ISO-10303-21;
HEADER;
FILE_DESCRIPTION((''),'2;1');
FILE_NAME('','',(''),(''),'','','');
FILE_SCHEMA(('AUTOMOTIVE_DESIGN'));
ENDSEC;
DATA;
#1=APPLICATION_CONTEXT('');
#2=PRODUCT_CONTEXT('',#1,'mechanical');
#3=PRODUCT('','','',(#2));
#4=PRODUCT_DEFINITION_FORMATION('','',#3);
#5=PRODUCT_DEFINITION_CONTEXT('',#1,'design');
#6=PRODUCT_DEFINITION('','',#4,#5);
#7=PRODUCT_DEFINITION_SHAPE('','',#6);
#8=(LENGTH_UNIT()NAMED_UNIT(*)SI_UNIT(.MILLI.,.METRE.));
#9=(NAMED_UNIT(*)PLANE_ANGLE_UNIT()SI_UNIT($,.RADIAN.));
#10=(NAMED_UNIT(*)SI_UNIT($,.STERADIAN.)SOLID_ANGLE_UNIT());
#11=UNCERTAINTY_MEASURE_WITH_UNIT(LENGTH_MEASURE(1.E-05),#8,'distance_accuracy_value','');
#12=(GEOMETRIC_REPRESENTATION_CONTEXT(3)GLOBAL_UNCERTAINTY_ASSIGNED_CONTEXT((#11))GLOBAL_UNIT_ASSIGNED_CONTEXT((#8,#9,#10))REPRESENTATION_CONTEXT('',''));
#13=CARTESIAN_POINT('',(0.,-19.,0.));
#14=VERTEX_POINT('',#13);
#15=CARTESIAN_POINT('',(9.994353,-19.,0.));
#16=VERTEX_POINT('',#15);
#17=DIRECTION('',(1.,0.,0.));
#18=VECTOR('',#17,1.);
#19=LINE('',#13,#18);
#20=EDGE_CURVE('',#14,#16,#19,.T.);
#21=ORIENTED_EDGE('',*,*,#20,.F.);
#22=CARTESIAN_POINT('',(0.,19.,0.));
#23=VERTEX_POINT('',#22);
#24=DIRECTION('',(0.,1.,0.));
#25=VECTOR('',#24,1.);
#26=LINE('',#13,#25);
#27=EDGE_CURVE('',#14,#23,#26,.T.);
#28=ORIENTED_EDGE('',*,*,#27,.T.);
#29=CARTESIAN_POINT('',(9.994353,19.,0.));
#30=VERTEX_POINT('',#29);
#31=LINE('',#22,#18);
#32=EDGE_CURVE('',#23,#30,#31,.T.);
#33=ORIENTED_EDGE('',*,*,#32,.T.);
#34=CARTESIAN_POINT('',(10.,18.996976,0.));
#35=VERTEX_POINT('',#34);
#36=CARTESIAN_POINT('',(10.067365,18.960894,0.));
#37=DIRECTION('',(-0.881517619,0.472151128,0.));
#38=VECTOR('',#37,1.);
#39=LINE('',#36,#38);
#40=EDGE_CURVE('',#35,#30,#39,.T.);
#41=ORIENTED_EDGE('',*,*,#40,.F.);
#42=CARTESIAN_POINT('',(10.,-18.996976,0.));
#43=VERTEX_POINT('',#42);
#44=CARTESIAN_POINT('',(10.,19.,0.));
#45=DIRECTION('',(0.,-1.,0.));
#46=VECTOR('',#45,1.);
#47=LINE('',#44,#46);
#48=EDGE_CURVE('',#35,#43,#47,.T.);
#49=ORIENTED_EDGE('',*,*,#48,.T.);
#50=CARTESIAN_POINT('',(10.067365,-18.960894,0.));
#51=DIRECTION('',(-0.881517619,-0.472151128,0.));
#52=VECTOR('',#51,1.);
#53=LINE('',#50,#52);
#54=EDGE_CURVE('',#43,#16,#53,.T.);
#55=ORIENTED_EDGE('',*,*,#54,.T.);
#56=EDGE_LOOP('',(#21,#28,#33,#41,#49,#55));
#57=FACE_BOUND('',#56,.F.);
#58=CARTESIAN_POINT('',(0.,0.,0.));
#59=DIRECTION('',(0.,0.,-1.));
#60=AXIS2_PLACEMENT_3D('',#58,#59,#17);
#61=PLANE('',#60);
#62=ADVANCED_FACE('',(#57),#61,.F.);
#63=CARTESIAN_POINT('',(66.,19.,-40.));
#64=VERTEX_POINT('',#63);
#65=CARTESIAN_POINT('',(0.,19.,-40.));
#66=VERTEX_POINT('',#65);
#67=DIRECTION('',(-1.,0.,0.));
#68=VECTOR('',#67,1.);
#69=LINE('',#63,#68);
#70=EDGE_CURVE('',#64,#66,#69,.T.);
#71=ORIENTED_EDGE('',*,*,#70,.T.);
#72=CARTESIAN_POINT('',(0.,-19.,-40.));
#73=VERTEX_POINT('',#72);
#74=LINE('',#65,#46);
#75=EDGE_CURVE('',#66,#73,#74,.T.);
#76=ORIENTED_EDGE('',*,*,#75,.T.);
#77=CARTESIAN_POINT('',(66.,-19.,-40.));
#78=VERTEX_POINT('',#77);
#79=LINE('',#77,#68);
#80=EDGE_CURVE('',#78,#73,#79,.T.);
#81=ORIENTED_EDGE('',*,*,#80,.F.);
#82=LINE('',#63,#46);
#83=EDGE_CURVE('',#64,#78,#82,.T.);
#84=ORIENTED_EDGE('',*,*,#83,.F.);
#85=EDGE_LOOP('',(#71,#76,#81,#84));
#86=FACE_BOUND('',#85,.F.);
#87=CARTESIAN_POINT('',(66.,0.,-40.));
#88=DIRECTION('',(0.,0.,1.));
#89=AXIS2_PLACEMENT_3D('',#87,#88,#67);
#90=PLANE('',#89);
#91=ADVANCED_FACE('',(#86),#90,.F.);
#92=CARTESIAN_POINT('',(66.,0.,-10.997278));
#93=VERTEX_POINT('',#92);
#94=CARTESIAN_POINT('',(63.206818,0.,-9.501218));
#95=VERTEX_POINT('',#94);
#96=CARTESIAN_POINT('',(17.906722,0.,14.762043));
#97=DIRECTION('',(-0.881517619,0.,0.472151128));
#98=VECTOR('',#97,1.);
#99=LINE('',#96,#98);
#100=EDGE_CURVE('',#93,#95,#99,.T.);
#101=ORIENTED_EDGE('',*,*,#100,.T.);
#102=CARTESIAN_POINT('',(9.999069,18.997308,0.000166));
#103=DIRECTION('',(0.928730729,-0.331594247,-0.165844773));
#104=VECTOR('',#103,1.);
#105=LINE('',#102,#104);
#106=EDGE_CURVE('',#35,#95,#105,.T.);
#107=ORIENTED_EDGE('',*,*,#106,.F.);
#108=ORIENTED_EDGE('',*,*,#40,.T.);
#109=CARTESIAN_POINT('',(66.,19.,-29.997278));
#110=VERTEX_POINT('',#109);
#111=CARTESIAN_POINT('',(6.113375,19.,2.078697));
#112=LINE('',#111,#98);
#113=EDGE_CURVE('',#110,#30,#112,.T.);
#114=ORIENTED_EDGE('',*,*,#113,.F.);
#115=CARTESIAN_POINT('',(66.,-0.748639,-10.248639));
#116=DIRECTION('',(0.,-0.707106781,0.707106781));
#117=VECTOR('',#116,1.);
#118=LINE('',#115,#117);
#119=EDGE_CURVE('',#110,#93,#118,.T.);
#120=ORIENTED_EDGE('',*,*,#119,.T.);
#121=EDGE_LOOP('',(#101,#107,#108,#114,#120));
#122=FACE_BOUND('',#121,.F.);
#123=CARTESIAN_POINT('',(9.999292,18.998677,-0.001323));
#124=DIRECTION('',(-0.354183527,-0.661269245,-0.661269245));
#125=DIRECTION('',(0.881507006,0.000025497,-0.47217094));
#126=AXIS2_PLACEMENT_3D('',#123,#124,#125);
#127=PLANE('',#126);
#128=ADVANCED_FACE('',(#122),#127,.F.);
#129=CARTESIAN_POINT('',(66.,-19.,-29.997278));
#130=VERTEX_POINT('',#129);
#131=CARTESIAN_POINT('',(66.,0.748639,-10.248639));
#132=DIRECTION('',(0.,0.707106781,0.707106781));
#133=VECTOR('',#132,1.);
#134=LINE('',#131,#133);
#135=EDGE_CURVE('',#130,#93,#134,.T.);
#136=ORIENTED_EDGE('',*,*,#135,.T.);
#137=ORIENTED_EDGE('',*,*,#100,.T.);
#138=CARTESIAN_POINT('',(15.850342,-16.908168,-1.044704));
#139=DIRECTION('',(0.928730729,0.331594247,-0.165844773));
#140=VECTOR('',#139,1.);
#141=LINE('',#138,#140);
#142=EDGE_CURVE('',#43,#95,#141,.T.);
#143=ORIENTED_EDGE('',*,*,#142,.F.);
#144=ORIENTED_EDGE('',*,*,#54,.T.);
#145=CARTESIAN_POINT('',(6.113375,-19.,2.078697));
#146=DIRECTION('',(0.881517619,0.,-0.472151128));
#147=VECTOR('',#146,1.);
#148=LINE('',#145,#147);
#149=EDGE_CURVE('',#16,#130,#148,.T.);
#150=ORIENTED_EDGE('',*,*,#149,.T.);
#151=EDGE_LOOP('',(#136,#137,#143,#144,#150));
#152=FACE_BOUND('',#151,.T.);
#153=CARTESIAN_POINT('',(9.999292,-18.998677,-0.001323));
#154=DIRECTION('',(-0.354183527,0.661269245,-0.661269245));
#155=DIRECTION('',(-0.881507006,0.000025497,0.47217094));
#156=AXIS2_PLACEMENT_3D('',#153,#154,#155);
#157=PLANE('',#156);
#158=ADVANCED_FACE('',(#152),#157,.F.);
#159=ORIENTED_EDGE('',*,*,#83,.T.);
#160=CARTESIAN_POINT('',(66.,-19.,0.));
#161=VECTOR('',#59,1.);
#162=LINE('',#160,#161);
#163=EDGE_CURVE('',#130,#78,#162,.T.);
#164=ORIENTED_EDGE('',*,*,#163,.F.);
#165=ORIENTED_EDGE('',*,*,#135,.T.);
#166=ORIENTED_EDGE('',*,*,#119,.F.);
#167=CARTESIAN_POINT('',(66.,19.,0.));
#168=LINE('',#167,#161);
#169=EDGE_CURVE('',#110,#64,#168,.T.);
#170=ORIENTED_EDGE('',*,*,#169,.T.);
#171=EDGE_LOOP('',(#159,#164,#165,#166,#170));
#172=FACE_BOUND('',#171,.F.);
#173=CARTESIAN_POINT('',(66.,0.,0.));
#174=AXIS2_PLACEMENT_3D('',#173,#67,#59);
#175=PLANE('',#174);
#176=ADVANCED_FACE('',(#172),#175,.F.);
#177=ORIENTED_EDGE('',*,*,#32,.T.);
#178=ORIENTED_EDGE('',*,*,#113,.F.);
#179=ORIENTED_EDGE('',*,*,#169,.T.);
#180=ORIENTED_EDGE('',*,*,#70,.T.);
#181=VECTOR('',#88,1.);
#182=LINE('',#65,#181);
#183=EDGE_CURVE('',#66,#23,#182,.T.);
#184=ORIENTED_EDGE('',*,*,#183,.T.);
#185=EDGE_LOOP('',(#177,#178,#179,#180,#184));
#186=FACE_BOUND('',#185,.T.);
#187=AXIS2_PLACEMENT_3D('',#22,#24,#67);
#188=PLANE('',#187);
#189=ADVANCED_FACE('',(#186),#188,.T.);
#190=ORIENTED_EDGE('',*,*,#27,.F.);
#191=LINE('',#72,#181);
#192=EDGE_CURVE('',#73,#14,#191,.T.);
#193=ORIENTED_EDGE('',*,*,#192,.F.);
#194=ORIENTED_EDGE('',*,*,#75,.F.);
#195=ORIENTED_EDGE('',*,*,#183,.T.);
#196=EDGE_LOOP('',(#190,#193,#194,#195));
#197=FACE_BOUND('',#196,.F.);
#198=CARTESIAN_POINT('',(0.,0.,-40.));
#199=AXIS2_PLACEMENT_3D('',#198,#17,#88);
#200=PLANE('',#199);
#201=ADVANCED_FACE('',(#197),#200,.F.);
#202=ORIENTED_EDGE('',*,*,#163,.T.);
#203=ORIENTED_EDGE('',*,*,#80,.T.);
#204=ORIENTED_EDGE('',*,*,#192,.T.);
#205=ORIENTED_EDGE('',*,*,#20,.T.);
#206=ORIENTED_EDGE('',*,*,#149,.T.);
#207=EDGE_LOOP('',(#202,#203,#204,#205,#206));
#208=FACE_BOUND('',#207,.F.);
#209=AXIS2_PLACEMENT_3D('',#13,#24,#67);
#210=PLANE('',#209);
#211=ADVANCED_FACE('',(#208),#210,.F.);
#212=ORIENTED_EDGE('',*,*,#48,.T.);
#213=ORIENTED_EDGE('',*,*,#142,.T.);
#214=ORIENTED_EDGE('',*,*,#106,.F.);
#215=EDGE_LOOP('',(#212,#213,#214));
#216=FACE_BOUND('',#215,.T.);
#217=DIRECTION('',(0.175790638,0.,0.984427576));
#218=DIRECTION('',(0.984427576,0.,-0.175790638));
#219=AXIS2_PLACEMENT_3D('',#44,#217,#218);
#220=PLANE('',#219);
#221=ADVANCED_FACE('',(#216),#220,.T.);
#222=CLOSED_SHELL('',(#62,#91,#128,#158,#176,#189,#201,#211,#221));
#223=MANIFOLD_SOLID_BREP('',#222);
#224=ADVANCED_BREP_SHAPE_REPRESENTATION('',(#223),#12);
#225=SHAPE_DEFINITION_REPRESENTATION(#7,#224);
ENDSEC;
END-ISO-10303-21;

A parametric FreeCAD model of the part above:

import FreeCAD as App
import Part
import Sketcher

doc = App.newDocument("Part")
body = doc.addObject("PartDesign::Body", "Body")

sketch1 = body.newObject("Sketcher::SketchObject", "Sketch")
sketch1.AttachmentSupport = (doc.getObject("XZ_Plane"), [""])
sketch1.MapMode = "FlatFace"
sketch1.addGeometry([
    Part.LineSegment(App.Vector(0, -40, 0), App.Vector(0, 0, 0)),
    Part.LineSegment(App.Vector(0, 0, 0), App.Vector(66, 0, 0)),
    Part.LineSegment(App.Vector(66, 0, 0), App.Vector(66, -40, 0)),
    Part.LineSegment(App.Vector(66, -40, 0), App.Vector(0, -40, 0)),
], False)
sketch1.addConstraint([
    Sketcher.Constraint("Coincident", 0, 2, 1, 1),
    Sketcher.Constraint("Coincident", 1, 2, 2, 1),
    Sketcher.Constraint("Coincident", 2, 2, 3, 1),
    Sketcher.Constraint("Coincident", 3, 2, 0, 1),
    Sketcher.Constraint("Vertical", 0),
    Sketcher.Constraint("Horizontal", 1),
    Sketcher.Constraint("Vertical", 2),
    Sketcher.Constraint("Horizontal", 3),
    Sketcher.Constraint("Coincident", 0, 2, -1, 1),
    Sketcher.Constraint("DistanceX", 1, 1, 1, 2, 66.0),
    Sketcher.Constraint("DistanceY", 0, 1, 0, 2, 40.0),
])
pad1 = body.newObject("PartDesign::Pad", "Pad")
pad1.Profile = sketch1
pad1.Length = 38
pad1.Midplane = True

sketch2 = body.newObject("Sketcher::SketchObject", "Sketch001")
sketch2.AttachmentSupport = (doc.getObject("XZ_Plane"), [""])
sketch2.MapMode = "FlatFace"
sketch2.AttachmentOffset = App.Placement(App.Vector(0, 0, -19), App.Rotation())
sketch2.addGeometry([
    Part.LineSegment(App.Vector(66, -10, 0), App.Vector(10, 0, 0)),
    Part.LineSegment(App.Vector(10, 0, 0), App.Vector(66, 0, 0)),
    Part.LineSegment(App.Vector(66, 0, 0), App.Vector(66, -10, 0)),
], False)
sketch2.addConstraint([
    Sketcher.Constraint("Coincident", 0, 2, 1, 1),
    Sketcher.Constraint("Coincident", 1, 2, 2, 1),
    Sketcher.Constraint("Coincident", 2, 2, 0, 1),
    Sketcher.Constraint("Horizontal", 1),
    Sketcher.Constraint("Vertical", 2),
    Sketcher.Constraint("PointOnObject", 0, 2, -1),
    Sketcher.Constraint("DistanceY", 2, 2, 2, 1, 10.0),
    Sketcher.Constraint("DistanceX", -1, 1, 0, 2, 10.0),
    Sketcher.Constraint("DistanceX", 1, 1, 1, 2, 56.0),
])
pocket1 = body.newObject("PartDesign::Pocket", "Pocket")
pocket1.Profile = sketch2
pocket1.Length = 40
pocket1.Reversed = True

sketch3 = body.newObject("Sketcher::SketchObject", "Sketch002")
sketch3.Placement = App.Placement(App.Vector(10, 19, 0), App.Rotation(App.Vector(0.881507006, 0.000025497, -0.47217094), App.Vector(0.312248981, -0.750148641, 0.582904442), App.Vector(-0.354183527, -0.661269245, -0.661269245), "ZXY"))
sketch3.addGeometry([
    Part.LineSegment(App.Vector(-15, 29, 0), App.Vector(-15, -12, 0)),
    Part.LineSegment(App.Vector(-15, -12, 0), App.Vector(94, -12, 0)),
    Part.LineSegment(App.Vector(94, -12, 0), App.Vector(94, 29, 0)),
    Part.LineSegment(App.Vector(94, 29, 0), App.Vector(-15, 29, 0)),
], False)
sketch3.addConstraint([
    Sketcher.Constraint("Coincident", 0, 2, 1, 1),
    Sketcher.Constraint("Coincident", 1, 2, 2, 1),
    Sketcher.Constraint("Coincident", 2, 2, 3, 1),
    Sketcher.Constraint("Coincident", 3, 2, 0, 1),
    Sketcher.Constraint("Vertical", 0),
    Sketcher.Constraint("Horizontal", 1),
    Sketcher.Constraint("Vertical", 2),
    Sketcher.Constraint("Horizontal", 3),
    Sketcher.Constraint("DistanceX", 1, 1, 1, 2, 108.8713),
    Sketcher.Constraint("DistanceY", 0, 2, 0, 1, 41.1384),
    Sketcher.Constraint("DistanceX", -1, 1, 1, 2, 93.717),
    Sketcher.Constraint("DistanceY", 0, 2, -1, 1, 12.3218),
])
pocket2 = body.newObject("PartDesign::Pocket", "Pocket001")
pocket2.Profile = sketch3
pocket2.Length = 40
doc.recompute()

mirrored = body.newObject("PartDesign::Mirrored", "Mirrored")
mirrored.Originals = [pocket2]
mirrored.MirrorPlane = (doc.getObject("XZ_Plane"), [""])
body.Tip = mirrored

doc.recompute()
